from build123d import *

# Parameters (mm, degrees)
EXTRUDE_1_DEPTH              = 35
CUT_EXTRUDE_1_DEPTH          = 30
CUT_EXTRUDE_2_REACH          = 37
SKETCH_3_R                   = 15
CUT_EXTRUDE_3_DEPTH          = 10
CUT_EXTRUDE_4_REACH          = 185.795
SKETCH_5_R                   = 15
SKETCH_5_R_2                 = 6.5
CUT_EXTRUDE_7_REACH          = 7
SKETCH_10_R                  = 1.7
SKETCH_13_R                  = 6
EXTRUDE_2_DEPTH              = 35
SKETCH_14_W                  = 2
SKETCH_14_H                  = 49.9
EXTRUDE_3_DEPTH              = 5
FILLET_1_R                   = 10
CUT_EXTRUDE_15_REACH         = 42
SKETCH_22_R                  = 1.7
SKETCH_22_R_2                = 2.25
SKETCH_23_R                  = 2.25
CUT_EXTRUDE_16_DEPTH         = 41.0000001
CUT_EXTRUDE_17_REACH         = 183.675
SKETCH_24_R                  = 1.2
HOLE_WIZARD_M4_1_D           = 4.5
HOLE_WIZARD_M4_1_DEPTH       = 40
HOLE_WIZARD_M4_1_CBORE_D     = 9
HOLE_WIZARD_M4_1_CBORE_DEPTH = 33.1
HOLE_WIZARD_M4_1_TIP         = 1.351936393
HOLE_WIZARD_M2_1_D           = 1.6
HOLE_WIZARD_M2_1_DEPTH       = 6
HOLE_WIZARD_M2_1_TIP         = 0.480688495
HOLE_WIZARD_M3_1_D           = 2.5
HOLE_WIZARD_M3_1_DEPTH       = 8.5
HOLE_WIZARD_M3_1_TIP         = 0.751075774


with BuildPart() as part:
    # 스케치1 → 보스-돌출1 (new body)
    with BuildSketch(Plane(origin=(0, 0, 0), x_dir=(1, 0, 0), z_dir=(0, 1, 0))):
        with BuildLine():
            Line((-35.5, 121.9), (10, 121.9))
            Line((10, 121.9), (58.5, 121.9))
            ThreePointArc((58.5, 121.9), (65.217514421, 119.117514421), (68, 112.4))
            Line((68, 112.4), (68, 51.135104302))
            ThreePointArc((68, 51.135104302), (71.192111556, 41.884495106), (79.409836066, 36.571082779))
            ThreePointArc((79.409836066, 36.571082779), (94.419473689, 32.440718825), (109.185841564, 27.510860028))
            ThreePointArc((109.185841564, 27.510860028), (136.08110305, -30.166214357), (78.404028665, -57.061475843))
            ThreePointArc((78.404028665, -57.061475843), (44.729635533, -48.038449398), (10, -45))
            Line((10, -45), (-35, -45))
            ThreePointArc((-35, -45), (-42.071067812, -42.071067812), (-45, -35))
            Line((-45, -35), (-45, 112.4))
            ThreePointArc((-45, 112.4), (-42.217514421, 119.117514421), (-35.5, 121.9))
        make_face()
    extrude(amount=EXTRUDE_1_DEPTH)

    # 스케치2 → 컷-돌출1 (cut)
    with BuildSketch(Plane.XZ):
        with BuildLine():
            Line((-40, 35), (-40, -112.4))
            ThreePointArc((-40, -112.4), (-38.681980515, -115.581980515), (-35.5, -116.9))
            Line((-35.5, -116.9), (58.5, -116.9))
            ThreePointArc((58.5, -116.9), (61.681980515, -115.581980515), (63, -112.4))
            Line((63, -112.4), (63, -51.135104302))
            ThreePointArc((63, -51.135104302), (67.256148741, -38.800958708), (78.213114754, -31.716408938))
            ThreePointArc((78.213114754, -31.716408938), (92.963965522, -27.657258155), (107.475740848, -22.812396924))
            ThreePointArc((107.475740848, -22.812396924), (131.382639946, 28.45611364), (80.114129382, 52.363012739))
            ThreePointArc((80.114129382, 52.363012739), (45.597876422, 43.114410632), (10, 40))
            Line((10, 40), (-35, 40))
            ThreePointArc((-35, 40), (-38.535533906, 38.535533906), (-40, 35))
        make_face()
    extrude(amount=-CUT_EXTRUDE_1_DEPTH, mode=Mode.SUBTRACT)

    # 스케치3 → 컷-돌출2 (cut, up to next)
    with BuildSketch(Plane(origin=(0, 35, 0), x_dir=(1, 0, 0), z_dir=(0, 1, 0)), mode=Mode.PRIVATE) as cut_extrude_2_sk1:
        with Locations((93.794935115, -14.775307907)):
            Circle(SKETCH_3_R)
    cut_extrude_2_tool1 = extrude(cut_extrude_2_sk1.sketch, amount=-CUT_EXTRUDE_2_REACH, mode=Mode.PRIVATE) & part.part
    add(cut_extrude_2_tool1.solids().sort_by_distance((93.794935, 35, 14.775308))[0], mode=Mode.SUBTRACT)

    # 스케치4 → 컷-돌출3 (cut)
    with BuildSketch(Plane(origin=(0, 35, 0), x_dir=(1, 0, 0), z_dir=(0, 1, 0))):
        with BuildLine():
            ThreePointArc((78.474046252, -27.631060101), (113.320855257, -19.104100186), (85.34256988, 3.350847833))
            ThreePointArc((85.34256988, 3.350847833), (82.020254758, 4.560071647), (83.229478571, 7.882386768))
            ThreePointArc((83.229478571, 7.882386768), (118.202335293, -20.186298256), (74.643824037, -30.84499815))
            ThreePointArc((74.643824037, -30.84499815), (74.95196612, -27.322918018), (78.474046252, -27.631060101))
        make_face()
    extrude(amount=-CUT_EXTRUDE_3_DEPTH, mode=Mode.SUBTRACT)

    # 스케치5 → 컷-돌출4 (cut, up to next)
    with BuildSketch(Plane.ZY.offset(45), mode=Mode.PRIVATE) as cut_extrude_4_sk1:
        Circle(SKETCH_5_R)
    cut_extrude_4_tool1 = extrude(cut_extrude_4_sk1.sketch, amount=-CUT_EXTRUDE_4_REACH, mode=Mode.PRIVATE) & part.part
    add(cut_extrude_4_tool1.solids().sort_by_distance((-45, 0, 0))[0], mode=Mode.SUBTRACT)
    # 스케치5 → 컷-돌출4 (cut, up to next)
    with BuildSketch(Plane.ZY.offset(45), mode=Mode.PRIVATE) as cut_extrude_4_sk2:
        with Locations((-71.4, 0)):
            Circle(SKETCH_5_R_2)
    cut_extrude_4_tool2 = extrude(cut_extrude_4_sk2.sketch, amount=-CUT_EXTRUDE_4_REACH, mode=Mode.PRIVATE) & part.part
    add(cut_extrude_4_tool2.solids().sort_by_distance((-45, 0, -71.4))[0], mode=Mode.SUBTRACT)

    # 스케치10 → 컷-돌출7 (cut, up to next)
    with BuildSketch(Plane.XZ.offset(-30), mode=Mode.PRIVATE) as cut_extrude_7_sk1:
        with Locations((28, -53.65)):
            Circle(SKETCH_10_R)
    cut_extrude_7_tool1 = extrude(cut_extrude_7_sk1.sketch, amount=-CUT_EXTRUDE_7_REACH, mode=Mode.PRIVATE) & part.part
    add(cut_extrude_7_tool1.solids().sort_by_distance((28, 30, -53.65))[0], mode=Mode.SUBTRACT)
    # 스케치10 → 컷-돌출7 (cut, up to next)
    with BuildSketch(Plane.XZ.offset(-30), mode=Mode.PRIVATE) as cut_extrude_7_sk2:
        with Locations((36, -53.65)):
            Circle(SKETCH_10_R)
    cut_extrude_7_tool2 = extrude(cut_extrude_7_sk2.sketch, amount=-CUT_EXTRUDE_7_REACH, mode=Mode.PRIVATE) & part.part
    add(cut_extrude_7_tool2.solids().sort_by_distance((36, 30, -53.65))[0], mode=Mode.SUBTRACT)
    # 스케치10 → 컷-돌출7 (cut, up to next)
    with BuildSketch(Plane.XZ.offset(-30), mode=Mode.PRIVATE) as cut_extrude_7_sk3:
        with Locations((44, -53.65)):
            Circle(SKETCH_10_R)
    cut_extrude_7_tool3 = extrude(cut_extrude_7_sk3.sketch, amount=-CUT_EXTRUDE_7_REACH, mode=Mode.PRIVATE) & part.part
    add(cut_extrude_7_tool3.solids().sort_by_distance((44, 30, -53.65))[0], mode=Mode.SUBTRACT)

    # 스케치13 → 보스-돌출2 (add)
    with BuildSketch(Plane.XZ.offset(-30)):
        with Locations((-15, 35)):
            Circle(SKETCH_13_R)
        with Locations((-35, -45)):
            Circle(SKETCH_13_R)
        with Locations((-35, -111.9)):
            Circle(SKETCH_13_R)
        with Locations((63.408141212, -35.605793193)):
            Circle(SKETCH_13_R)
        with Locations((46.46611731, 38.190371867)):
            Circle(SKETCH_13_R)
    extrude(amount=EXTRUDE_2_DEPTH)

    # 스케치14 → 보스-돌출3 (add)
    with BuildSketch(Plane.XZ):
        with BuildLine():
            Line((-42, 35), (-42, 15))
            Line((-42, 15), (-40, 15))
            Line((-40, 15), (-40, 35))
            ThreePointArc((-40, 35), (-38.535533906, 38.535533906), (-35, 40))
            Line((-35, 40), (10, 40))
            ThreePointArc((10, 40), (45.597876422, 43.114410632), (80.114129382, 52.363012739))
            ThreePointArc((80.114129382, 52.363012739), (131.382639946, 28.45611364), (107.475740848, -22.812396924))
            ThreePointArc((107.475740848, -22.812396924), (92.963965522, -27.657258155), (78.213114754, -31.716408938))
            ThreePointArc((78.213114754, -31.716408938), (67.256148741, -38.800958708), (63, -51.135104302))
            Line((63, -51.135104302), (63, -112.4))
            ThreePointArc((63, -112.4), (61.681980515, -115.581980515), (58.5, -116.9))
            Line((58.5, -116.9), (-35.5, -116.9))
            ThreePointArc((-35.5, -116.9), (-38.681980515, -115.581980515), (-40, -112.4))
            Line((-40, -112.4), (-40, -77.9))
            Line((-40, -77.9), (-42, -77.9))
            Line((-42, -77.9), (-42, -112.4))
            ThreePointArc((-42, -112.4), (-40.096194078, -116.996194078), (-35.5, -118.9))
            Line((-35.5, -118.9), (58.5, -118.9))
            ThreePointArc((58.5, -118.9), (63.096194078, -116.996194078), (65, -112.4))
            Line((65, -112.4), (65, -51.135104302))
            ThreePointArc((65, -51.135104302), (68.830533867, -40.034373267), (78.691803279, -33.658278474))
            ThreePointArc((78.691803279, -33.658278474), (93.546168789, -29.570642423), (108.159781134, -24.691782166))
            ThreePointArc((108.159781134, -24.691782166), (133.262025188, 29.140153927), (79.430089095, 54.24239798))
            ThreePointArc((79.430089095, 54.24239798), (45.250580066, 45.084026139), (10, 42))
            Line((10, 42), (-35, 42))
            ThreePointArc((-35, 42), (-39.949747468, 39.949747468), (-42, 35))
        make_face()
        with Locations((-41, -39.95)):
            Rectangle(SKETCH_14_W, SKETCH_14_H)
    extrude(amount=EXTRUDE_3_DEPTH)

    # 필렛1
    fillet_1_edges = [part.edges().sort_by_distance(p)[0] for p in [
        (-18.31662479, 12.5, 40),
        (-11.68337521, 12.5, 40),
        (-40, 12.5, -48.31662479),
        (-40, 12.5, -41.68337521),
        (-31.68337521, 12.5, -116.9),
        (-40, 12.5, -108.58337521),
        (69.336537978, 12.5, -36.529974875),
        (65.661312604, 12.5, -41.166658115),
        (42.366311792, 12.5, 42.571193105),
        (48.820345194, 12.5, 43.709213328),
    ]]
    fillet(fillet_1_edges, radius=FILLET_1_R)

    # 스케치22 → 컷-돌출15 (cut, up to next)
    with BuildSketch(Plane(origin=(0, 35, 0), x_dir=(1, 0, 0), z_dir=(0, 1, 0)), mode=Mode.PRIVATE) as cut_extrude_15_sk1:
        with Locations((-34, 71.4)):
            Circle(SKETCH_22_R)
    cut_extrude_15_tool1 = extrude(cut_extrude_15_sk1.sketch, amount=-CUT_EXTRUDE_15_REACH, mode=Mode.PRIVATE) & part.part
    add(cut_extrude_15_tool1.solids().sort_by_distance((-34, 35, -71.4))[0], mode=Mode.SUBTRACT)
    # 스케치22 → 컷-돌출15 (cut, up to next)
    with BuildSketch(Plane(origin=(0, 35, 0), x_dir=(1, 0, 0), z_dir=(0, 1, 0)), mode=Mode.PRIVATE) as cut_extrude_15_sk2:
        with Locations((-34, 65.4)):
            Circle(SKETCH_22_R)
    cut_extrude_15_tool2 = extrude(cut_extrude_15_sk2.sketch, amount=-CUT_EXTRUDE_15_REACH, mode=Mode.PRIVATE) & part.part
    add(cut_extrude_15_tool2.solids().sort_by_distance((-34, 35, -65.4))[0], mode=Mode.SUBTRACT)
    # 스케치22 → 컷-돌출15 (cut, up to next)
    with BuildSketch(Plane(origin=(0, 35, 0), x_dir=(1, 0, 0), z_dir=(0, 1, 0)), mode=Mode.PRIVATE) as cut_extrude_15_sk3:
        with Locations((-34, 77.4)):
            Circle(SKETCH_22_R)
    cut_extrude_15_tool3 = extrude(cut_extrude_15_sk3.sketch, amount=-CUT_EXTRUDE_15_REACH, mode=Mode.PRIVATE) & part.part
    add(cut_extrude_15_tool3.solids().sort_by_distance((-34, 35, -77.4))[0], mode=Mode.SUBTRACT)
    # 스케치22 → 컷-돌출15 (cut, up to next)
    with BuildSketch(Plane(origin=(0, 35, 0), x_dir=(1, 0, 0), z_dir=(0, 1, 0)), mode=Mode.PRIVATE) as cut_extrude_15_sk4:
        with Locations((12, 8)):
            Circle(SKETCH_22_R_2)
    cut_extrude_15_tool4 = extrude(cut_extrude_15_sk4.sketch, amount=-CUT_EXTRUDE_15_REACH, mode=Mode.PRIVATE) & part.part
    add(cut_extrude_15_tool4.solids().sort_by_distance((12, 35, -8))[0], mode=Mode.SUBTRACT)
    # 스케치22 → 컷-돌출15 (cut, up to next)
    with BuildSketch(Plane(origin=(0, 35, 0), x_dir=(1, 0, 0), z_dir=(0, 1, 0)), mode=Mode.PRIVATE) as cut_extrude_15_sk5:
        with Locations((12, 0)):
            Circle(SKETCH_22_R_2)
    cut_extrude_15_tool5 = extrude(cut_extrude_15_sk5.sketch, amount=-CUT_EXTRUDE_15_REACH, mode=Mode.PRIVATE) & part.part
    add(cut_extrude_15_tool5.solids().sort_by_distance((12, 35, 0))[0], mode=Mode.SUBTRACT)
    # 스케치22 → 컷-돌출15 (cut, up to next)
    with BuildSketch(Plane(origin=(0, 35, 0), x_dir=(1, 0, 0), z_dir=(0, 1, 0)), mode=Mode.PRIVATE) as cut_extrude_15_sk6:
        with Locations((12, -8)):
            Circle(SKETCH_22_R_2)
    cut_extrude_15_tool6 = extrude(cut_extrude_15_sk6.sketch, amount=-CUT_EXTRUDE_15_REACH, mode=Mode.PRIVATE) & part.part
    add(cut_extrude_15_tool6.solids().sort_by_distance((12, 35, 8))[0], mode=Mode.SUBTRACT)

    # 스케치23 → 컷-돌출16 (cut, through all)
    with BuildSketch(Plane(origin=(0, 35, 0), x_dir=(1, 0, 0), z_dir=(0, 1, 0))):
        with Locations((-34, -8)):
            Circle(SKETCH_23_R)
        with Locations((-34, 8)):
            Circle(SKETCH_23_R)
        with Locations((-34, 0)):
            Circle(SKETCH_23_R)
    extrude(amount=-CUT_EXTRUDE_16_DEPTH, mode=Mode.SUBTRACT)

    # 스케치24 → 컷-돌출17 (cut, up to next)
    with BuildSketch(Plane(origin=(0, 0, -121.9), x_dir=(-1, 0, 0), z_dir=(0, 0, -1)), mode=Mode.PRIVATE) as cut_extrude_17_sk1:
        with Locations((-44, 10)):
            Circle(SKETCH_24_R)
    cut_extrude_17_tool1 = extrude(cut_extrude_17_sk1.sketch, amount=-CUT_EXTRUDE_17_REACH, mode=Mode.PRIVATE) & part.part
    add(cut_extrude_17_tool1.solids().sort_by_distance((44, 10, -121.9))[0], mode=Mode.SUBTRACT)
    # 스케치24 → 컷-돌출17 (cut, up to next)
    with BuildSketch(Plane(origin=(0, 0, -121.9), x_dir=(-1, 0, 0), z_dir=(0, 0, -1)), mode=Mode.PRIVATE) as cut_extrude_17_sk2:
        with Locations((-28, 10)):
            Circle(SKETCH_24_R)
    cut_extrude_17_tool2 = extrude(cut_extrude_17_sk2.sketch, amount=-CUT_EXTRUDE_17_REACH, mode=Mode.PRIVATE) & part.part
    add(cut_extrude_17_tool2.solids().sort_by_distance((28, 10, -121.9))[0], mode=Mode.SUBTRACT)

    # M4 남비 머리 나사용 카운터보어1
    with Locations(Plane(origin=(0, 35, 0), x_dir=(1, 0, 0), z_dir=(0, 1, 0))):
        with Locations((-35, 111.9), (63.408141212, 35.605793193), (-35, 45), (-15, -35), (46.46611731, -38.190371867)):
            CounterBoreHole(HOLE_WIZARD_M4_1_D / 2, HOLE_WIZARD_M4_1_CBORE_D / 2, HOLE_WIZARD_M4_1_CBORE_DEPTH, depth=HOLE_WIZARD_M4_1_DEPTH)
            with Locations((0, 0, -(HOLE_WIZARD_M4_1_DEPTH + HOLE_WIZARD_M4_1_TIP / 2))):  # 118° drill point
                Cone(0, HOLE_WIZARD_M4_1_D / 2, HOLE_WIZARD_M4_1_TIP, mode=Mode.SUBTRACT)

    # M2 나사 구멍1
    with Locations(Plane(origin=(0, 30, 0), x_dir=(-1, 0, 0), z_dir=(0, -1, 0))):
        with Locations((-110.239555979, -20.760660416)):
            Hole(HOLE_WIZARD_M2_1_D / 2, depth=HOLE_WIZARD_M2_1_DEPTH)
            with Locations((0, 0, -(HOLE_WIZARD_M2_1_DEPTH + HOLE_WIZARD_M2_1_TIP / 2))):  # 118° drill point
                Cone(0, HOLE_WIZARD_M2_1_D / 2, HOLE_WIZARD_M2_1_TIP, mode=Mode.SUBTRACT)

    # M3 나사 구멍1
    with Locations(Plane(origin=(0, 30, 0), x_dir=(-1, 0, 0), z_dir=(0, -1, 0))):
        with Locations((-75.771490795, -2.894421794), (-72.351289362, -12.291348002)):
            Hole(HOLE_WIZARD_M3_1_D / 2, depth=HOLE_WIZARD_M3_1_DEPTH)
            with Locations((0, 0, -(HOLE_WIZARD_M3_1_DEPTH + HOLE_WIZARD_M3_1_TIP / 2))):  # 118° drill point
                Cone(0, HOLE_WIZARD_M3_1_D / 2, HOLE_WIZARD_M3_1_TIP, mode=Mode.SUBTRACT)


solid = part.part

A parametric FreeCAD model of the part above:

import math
import FreeCAD as App
import Part
import Sketcher

V = App.Vector
Q = App.Units.Quantity


def edges_at(feature, points):
    """Names of the edges that pass closest to the given points."""
    edges = feature.Shape.Edges
    near = lambda p: min(range(len(edges)), key=lambda i: edges[i].distToShape(Part.Vertex(*p))[0])
    return sorted({f"Edge{near(p) + 1}" for p in points})

doc = App.newDocument("Part")
body = doc.addObject("PartDesign::Body", "Body")

# Sketch on XZ plane
sketch1 = body.newObject("Sketcher::SketchObject", "Sketch")
sketch1.AttachmentSupport = (doc.getObject("XZ_Plane"), [""])
sketch1.MapMode = "FlatFace"
sketch1.addGeometry(Part.LineSegment(V(58, -122, 0), V(-36, -122, 0)), False)
sketch1.addGeometry(Part.ArcOfCircle(Part.Circle(V(-35, -112, 0), V(0, 0, 1), 10), math.radians(-180), math.radians(-90)), False)
sketch1.addGeometry(Part.LineSegment(V(-45, -112, 0), V(-45, 35, 0)), False)
sketch1.addGeometry(Part.ArcOfCircle(Part.Circle(V(-35, 35, 0), V(0, 0, 1), 10), math.radians(90), math.radians(180)), False)
sketch1.addGeometry(Part.LineSegment(V(-35, 45, 0), V(10, 45, 0)), False)
sketch1.addGeometry(Part.ArcOfCircle(Part.Circle(V(10, 245, 0), V(0, 0, 1), 200), math.radians(-90), math.radians(-70)), False)
sketch1.addGeometry(Part.ArcOfCircle(Part.Circle(V(94, 15, 0), V(0, 0, 1), 45), math.radians(-70), math.radians(110)), False)
sketch1.addGeometry(Part.ArcOfCircle(Part.Circle(V(10, 245, 0), V(0, 0, 1), 290), math.radians(-76.15), math.radians(-70)), False)
sketch1.addGeometry(Part.ArcOfCircle(Part.Circle(V(83, -51, 0), V(0, 0, 1), 15), math.radians(104), math.radians(180)), False)
sketch1.addGeometry(Part.LineSegment(V(68, -51, 0), V(68, -112, 0)), False)
sketch1.addGeometry(Part.ArcOfCircle(Part.Circle(V(58, -112, 0), V(0, 0, 1), 10), math.radians(-90), math.radians(0)), False)
sketch1.addConstraint(Sketcher.Constraint("Tangent", 0, 2, 1, 2))
sketch1.addConstraint(Sketcher.Constraint("Tangent", 1, 1, 2, 1))
sketch1.addConstraint(Sketcher.Constraint("Tangent", 2, 2, 3, 2))
sketch1.addConstraint(Sketcher.Constraint("Tangent", 3, 1, 4, 1))
sketch1.addConstraint(Sketcher.Constraint("Tangent", 4, 2, 5, 1))
sketch1.addConstraint(Sketcher.Constraint("Tangent", 5, 2, 6, 2))
sketch1.addConstraint(Sketcher.Constraint("Tangent", 6, 1, 7, 2))
sketch1.addConstraint(Sketcher.Constraint("Tangent", 7, 1, 8, 1))
sketch1.addConstraint(Sketcher.Constraint("Tangent", 8, 2, 9, 1))
sketch1.addConstraint(Sketcher.Constraint("Tangent", 9, 2, 10, 2))
sketch1.addConstraint(Sketcher.Constraint("Tangent", 10, 1, 0, 1))
sketch1.addConstraint(Sketcher.Constraint("Horizontal", 0))
sketch1.addConstraint(Sketcher.Constraint("Vertical", 2))
sketch1.addConstraint(Sketcher.Constraint("Horizontal", 4))
sketch1.addConstraint(Sketcher.Constraint("Vertical", 9))
sketch1.addConstraint(Sketcher.Constraint("Coincident", 7, 3, 5, 3))
sketch1.addConstraint(Sketcher.Constraint("Equal", 1, 10))
sketch1.addConstraint(Sketcher.Constraint("Radius", 3, Q("10 mm")))
sketch1.addConstraint(Sketcher.Constraint("Radius", 5, Q("200 mm")))
sketch1.addConstraint(Sketcher.Constraint("Radius", 6, Q("45 mm")))
sketch1.addConstraint(Sketcher.Constraint("Radius", 8, Q("15 mm")))
sketch1.addConstraint(Sketcher.Constraint("Radius", 1, Q("9.5 mm")))
sketch1.addConstraint(Sketcher.Constraint("DistanceX", 0, 2, 0, 1, Q("94 mm")))
sketch1.addConstraint(Sketcher.Constraint("DistanceX", 4, 1, 4, 2, Q("45 mm")))
sketch1.addConstraint(Sketcher.Constraint("DistanceY", 2, 1, 2, 2, Q("147.4 mm")))
sketch1.addConstraint(Sketcher.Constraint("DistanceX", 3, 3, -1, 1, Q("35 mm")))
sketch1.addConstraint(Sketcher.Constraint("DistanceY", -1, 1, 3, 3, Q("35 mm")))
sketch1.addConstraint(Sketcher.Constraint("DistanceX", 7, 1, 6, 3, Q("14.385099 mm")))
pad1 = body.newObject("PartDesign::Pad", "Pad")
pad1.Profile = sketch1
pad1.Length = 35
pad1.Reversed = True

# Sketch on XZ plane
sketch2 = body.newObject("Sketcher::SketchObject", "Sketch001")
sketch2.AttachmentSupport = (doc.getObject("XZ_Plane"), [""])
sketch2.MapMode = "FlatFace"
sketch2.addGeometry(Part.LineSegment(V(-40, 35, 0), V(-40, -112.4, 0)), False)
sketch2.addGeometry(Part.ArcOfCircle(Part.Circle(V(-35.5, -112.4, 0), V(0, 0, 1), 4.5), math.radians(-180), math.radians(-90)), False)
sketch2.addGeometry(Part.LineSegment(V(-35.5, -116.9, 0), V(58.5, -116.9, 0)), False)
sketch2.addGeometry(Part.ArcOfCircle(Part.Circle(V(58.5, -112.4, 0), V(0, 0, 1), 4.5), math.radians(-90), math.radians(0)), False)
sketch2.addGeometry(Part.LineSegment(V(63, -112.4, 0), V(63, -51.1, 0)), False)
sketch2.addGeometry(Part.ArcOfCircle(Part.Circle(V(83, -51.1, 0), V(0, 0, 1), 20), math.radians(104), math.radians(180)), False)
sketch2.addGeometry(Part.ArcOfCircle(Part.Circle(V(10, 245, 0), V(0, 0, 1), 285), math.radians(-76.15), math.radians(-70)), False)
sketch2.addGeometry(Part.ArcOfCircle(Part.Circle(V(93.8, 14.8, 0), V(0, 0, 1), 40), math.radians(-70), math.radians(110)), False)
sketch2.addGeometry(Part.ArcOfCircle(Part.Circle(V(10, 245, 0), V(0, 0, 1), 205), math.radians(-90), math.radians(-70)), False)
sketch2.addGeometry(Part.LineSegment(V(10, 40, 0), V(-35, 40, 0)), False)
sketch2.addGeometry(Part.ArcOfCircle(Part.Circle(V(-35, 35, 0), V(0, 0, 1), 5), math.radians(90), math.radians(180)), False)
sketch2.addConstraint(Sketcher.Constraint("Tangent", 0, 2, 1, 1))
sketch2.addConstraint(Sketcher.Constraint("Tangent", 1, 2, 2, 1))
sketch2.addConstraint(Sketcher.Constraint("Tangent", 2, 2, 3, 1))
sketch2.addConstraint(Sketcher.Constraint("Tangent", 3, 2, 4, 1))
sketch2.addConstraint(Sketcher.Constraint("Tangent", 4, 2, 5, 2))
sketch2.addConstraint(Sketcher.Constraint("Tangent", 5, 1, 6, 1))
sketch2.addConstraint(Sketcher.Constraint("Tangent", 6, 2, 7, 1))
sketch2.addConstraint(Sketcher.Constraint("Tangent", 7, 2, 8, 2))
sketch2.addConstraint(Sketcher.Constraint("Tangent", 8, 1, 9, 1))
sketch2.addConstraint(Sketcher.Constraint("Tangent", 9, 2, 10, 1))
sketch2.addConstraint(Sketcher.Constraint("Tangent", 10, 2, 0, 1))
sketch2.addConstraint(Sketcher.Constraint("Vertical", 0))
sketch2.addConstraint(Sketcher.Constraint("Horizontal", 2))
sketch2.addConstraint(Sketcher.Constraint("Vertical", 4))
sketch2.addConstraint(Sketcher.Constraint("Horizontal", 9))
sketch2.addConstraint(Sketcher.Constraint("Coincident", 8, 3, 6, 3))
sketch2.addConstraint(Sketcher.Constraint("Equal", 1, 3))
sketch2.addConstraint(Sketcher.Constraint("Radius", 5, Q("20 mm")))
sketch2.addConstraint(Sketcher.Constraint("Radius", 6, Q("285 mm")))
sketch2.addConstraint(Sketcher.Constraint("Radius", 7, Q("40 mm")))
sketch2.addConstraint(Sketcher.Constraint("Radius", 10, Q("5 mm")))
sketch2.addConstraint(Sketcher.Constraint("Radius", 1, Q("4.5 mm")))
sketch2.addConstraint(Sketcher.Constraint("DistanceX", 2, 1, 2, 2, Q("94 mm")))
sketch2.addConstraint(Sketcher.Constraint("DistanceX", 9, 2, 9, 1, Q("45 mm")))
sketch2.addConstraint(Sketcher.Constraint("DistanceY", 0, 2, 0, 1, Q("147.4 mm")))
sketch2.addConstraint(Sketcher.Constraint("DistanceX", -1, 1, 5, 3, Q("83 mm")))
sketch2.addConstraint(Sketcher.Constraint("DistanceY", -1, 1, 6, 3, Q("245 mm")))
sketch2.addConstraint(Sketcher.Constraint("DistanceX", -1, 1, 6, 2, Q("107.475741 mm")))
pocket1 = body.newObject("PartDesign::Pocket", "Pocket")
pocket1.Profile = sketch2
pocket1.Length = 30

# Sketch on XZ plane
sketch3 = body.newObject("Sketcher::SketchObject", "Sketch002")
sketch3.AttachmentSupport = (doc.getObject("XZ_Plane"), [""])
sketch3.MapMode = "FlatFace"
sketch3.AttachmentOffset = App.Placement(V(0, 0, -35), App.Rotation())
sketch3.addGeometry(Part.Circle(V(94, 15, 0), V(0, 0, 1), 15), False)
sketch3.addConstraint(Sketcher.Constraint("Diameter", 0, Q("30 mm")))
sketch3.addConstraint(Sketcher.Constraint("DistanceX", -1, 1, 0, 3, Q("93.794935 mm")))
sketch3.addConstraint(Sketcher.Constraint("DistanceY", -1, 1, 0, 3, Q("14.775308 mm")))
pocket2 = body.newObject("PartDesign::Pocket", "Pocket001")
pocket2.Profile = sketch3
pocket2.Type = "UpToFirst"
pocket2.Reversed = True

# Sketch on XZ plane
sketch4 = body.newObject("Sketcher::SketchObject", "Sketch003")
sketch4.AttachmentSupport = (doc.getObject("XZ_Plane"), [""])
sketch4.MapMode = "FlatFace"
sketch4.AttachmentOffset = App.Placement(V(0, 0, -35), App.Rotation())
sketch4.addGeometry(Part.ArcOfCircle(Part.Circle(V(93.8, 14.8, 0), V(0, 0, 1), 20), math.radians(-115), math.radians(140)), False)
sketch4.addGeometry(Part.ArcOfCircle(Part.Circle(V(76.6, 29.2, 0), V(0, 0, 1), 2.5), math.radians(140), math.radians(320)), False)
sketch4.addGeometry(Part.ArcOfCircle(Part.Circle(V(93.8, 14.8, 0), V(0, 0, 1), 25), math.radians(-115), math.radians(140)), False)
sketch4.addGeometry(Part.ArcOfCircle(Part.Circle(V(84.3, -5.6, 0), V(0, 0, 1), 2.5), math.radians(65), math.radians(245)), False)
sketch4.addConstraint(Sketcher.Constraint("Tangent", 0, 2, 1, 2))
sketch4.addConstraint(Sketcher.Constraint("Tangent", 1, 1, 2, 2))
sketch4.addConstraint(Sketcher.Constraint("Tangent", 2, 1, 3, 2))
sketch4.addConstraint(Sketcher.Constraint("Tangent", 3, 1, 0, 1))
sketch4.addConstraint(Sketcher.Constraint("Coincident", 2, 3, 0, 3))
sketch4.addConstraint(Sketcher.Constraint("Radius", 0, Q("20 mm")))
sketch4.addConstraint(Sketcher.Constraint("Radius", 2, Q("25 mm")))
sketch4.addConstraint(Sketcher.Constraint("DistanceY", -1, 1, 1, 1, Q("30.844998 mm")))
sketch4.addConstraint(Sketcher.Constraint("DistanceX", 1, 3, 0, 3, Q("17.236 mm")))
sketch4.addConstraint(Sketcher.Constraint("DistanceX", 1, 1, 3, 3, Q("9.6422 mm")))
sketch4.addConstraint(Sketcher.Constraint("DistanceX", -1, 1, 2, 1, Q("83.229479 mm")))
pocket3 = body.newObject("PartDesign::Pocket", "Pocket002")
pocket3.Profile = sketch4
pocket3.Length = 10
pocket3.Reversed = True

# Sketch on YZ plane
sketch5 = body.newObject("Sketcher::SketchObject", "Sketch004")
sketch5.AttachmentSupport = (doc.getObject("YZ_Plane"), [""])
sketch5.MapMode = "FlatFace"
sketch5.AttachmentOffset = App.Placement(V(0, 0, -45), App.Rotation())
sketch5.addGeometry(Part.Circle(V(0, 0, 0), V(0, 0, 1), 15), False)
sketch5.addConstraint(Sketcher.Constraint("Coincident", 0, 3, -1, 1))
sketch5.addConstraint(Sketcher.Constraint("Diameter", 0, Q("30 mm")))
pocket4 = body.newObject("PartDesign::Pocket", "Pocket003")
pocket4.Profile = sketch5
pocket4.Type = "UpToFirst"
pocket4.Reversed = True

# Sketch on YZ plane
sketch6 = body.newObject("Sketcher::SketchObject", "Sketch005")
sketch6.AttachmentSupport = (doc.getObject("YZ_Plane"), [""])
sketch6.MapMode = "FlatFace"
sketch6.AttachmentOffset = App.Placement(V(0, 0, -45), App.Rotation())
sketch6.addGeometry(Part.Circle(V(0, -71, 0), V(0, 0, 1), 6), False)
sketch6.addConstraint(Sketcher.Constraint("PointOnObject", 0, 3, -2))
sketch6.addConstraint(Sketcher.Constraint("Diameter", 0, Q("13 mm")))
sketch6.addConstraint(Sketcher.Constraint("DistanceY", 0, 3, -1, 1, Q("71.4 mm")))
pocket5 = body.newObject("PartDesign::Pocket", "Pocket004")
pocket5.Profile = sketch6
pocket5.Type = "UpToFirst"
pocket5.Reversed = True

# Sketch on XZ plane
sketch7 = body.newObject("Sketcher::SketchObject", "Sketch006")
sketch7.AttachmentSupport = (doc.getObject("XZ_Plane"), [""])
sketch7.MapMode = "FlatFace"
sketch7.AttachmentOffset = App.Placement(V(0, 0, -30), App.Rotation())
sketch7.addGeometry(Part.Circle(V(28, -53.6, 0), V(0, 0, 1), 1.7), False)
sketch7.addConstraint(Sketcher.Constraint("Diameter", 0, Q("3.4 mm")))
sketch7.addConstraint(Sketcher.Constraint("DistanceX", -1, 1, 0, 3, Q("28 mm")))
sketch7.addConstraint(Sketcher.Constraint("DistanceY", 0, 3, -1, 1, Q("53.65 mm")))
pocket6 = body.newObject("PartDesign::Pocket", "Pocket005")
pocket6.Profile = sketch7
pocket6.Type = "UpToFirst"

# Sketch on XZ plane
sketch8 = body.newObject("Sketcher::SketchObject", "Sketch007")
sketch8.AttachmentSupport = (doc.getObject("XZ_Plane"), [""])
sketch8.MapMode = "FlatFace"
sketch8.AttachmentOffset = App.Placement(V(0, 0, -30), App.Rotation())
sketch8.addGeometry(Part.Circle(V(36, -53.6, 0), V(0, 0, 1), 1.7), False)
sketch8.addConstraint(Sketcher.Constraint("Diameter", 0, Q("3.4 mm")))
sketch8.addConstraint(Sketcher.Constraint("DistanceX", -1, 1, 0, 3, Q("36 mm")))
sketch8.addConstraint(Sketcher.Constraint("DistanceY", 0, 3, -1, 1, Q("53.65 mm")))
pocket7 = body.newObject("PartDesign::Pocket", "Pocket006")
pocket7.Profile = sketch8
pocket7.Type = "UpToFirst"

# Sketch on XZ plane
sketch9 = body.newObject("Sketcher::SketchObject", "Sketch008")
sketch9.AttachmentSupport = (doc.getObject("XZ_Plane"), [""])
sketch9.MapMode = "FlatFace"
sketch9.AttachmentOffset = App.Placement(V(0, 0, -30), App.Rotation())
sketch9.addGeometry(Part.Circle(V(44, -53.6, 0), V(0, 0, 1), 1.7), False)
sketch9.addConstraint(Sketcher.Constraint("Diameter", 0, Q("3.4 mm")))
sketch9.addConstraint(Sketcher.Constraint("DistanceX", -1, 1, 0, 3, Q("44 mm")))
sketch9.addConstraint(Sketcher.Constraint("DistanceY", 0, 3, -1, 1, Q("53.65 mm")))
pocket8 = body.newObject("PartDesign::Pocket", "Pocket007")
pocket8.Profile = sketch9
pocket8.Type = "UpToFirst"

# Sketch on XZ plane
sketch10 = body.newObject("Sketcher::SketchObject", "Sketch009")
sketch10.AttachmentSupport = (doc.getObject("XZ_Plane"), [""])
sketch10.MapMode = "FlatFace"
sketch10.AttachmentOffset = App.Placement(V(0, 0, -30), App.Rotation())
sketch10.addGeometry(Part.Circle(V(-15, 35, 0), V(0, 0, 1), 6), False)
sketch10.addGeometry(Part.Circle(V(-35, -45, 0), V(0, 0, 1), 6), False)
sketch10.addGeometry(Part.Circle(V(-35, -112, 0), V(0, 0, 1), 6), False)
sketch10.addGeometry(Part.Circle(V(63, -36, 0), V(0, 0, 1), 6), False)
sketch10.addGeometry(Part.Circle(V(46, 38, 0), V(0, 0, 1), 6), False)
sketch10.addConstraint(Sketcher.Constraint("Equal", 0, 1))
sketch10.addConstraint(Sketcher.Constraint("Equal", 1, 2))
sketch10.addConstraint(Sketcher.Constraint("Equal", 2, 3))
sketch10.addConstraint(Sketcher.Constraint("Equal", 3, 4))
sketch10.addConstraint(Sketcher.Constraint("Vertical", 1, 3, 2, 3))
sketch10.addConstraint(Sketcher.Constraint("Diameter", 0, Q("12 mm")))
sketch10.addConstraint(Sketcher.Constraint("DistanceX", 0, 3, -1, 1, Q("15 mm")))
sketch10.addConstraint(Sketcher.Constraint("DistanceY", -1, 1, 0, 3, Q("35 mm")))
sketch10.addConstraint(Sketcher.Constraint("DistanceX", 1, 3, -1, 1, Q("35 mm")))
sketch10.addConstraint(Sketcher.Constraint("DistanceY", 1, 3, -1, 1, Q("45 mm")))
sketch10.addConstraint(Sketcher.Constraint("DistanceY", 2, 3, -1, 1, Q("111.9 mm")))
sketch10.addConstraint(Sketcher.Constraint("DistanceX", -1, 1, 3, 3, Q("63.408141 mm")))
sketch10.addConstraint(Sketcher.Constraint("DistanceY", -1, 1, 4, 3, Q("38.190372 mm")))
sketch10.addConstraint(Sketcher.Constraint("DistanceY", 3, 3, -1, 1, Q("35.605793 mm")))
sketch10.addConstraint(Sketcher.Constraint("DistanceX", -1, 1, 4, 3, Q("46.466117 mm")))
pad2 = body.newObject("PartDesign::Pad", "Pad001")
pad2.Profile = sketch10
pad2.Length = 35

# Sketch on XZ plane
sketch11 = body.newObject("Sketcher::SketchObject", "Sketch010")
sketch11.AttachmentSupport = (doc.getObject("XZ_Plane"), [""])
sketch11.MapMode = "FlatFace"
sketch11.addGeometry(Part.LineSegment(V(-42, 35, 0), V(-42, 15, 0)), False)
sketch11.addGeometry(Part.LineSegment(V(-42, 15, 0), V(-40, 15, 0)), False)
sketch11.addGeometry(Part.LineSegment(V(-40, 15, 0), V(-40, 35, 0)), False)
sketch11.addGeometry(Part.ArcOfCircle(Part.Circle(V(-35, 35, 0), V(0, 0, 1), 5), math.radians(90), math.radians(180)), False)
sketch11.addGeometry(Part.LineSegment(V(-35, 40, 0), V(10, 40, 0)), False)
sketch11.addGeometry(Part.ArcOfCircle(Part.Circle(V(10, 245, 0), V(0, 0, 1), 205), math.radians(-90), math.radians(-70)), False)
sketch11.addGeometry(Part.ArcOfCircle(Part.Circle(V(93.8, 14.8, 0), V(0, 0, 1), 40), math.radians(-70), math.radians(110)), False)
sketch11.addGeometry(Part.ArcOfCircle(Part.Circle(V(10, 245, 0), V(0, 0, 1), 285), math.radians(-76.15), math.radians(-70)), False)
sketch11.addGeometry(Part.ArcOfCircle(Part.Circle(V(83, -51.1, 0), V(0, 0, 1), 20), math.radians(104), math.radians(180)), False)
sketch11.addGeometry(Part.LineSegment(V(63, -51.1, 0), V(63, -112.4, 0)), False)
sketch11.addGeometry(Part.ArcOfCircle(Part.Circle(V(58.5, -112.4, 0), V(0, 0, 1), 4.5), math.radians(-90), math.radians(0)), False)
sketch11.addGeometry(Part.LineSegment(V(58.5, -116.9, 0), V(-35.5, -116.9, 0)), False)
sketch11.addGeometry(Part.ArcOfCircle(Part.Circle(V(-35.5, -112.4, 0), V(0, 0, 1), 4.5), math.radians(-180), math.radians(-90)), False)
sketch11.addGeometry(Part.LineSegment(V(-40, -112.4, 0), V(-40, -77.9, 0)), False)
sketch11.addGeometry(Part.LineSegment(V(-40, -77.9, 0), V(-42, -77.9, 0)), False)
sketch11.addGeometry(Part.LineSegment(V(-42, -77.9, 0), V(-42, -112.4, 0)), False)
sketch11.addGeometry(Part.ArcOfCircle(Part.Circle(V(-35.5, -112.4, 0), V(0, 0, 1), 6.5), math.radians(180), math.radians(270)), False)
sketch11.addGeometry(Part.LineSegment(V(-35.5, -118.9, 0), V(58.5, -118.9, 0)), False)
sketch11.addGeometry(Part.ArcOfCircle(Part.Circle(V(58.5, -112.4, 0), V(0, 0, 1), 6.5), math.radians(-90), math.radians(0)), False)
sketch11.addGeometry(Part.LineSegment(V(65, -112.4, 0), V(65, -51.1, 0)), False)
sketch11.addGeometry(Part.ArcOfCircle(Part.Circle(V(83, -51.1, 0), V(0, 0, 1), 18), math.radians(104), math.radians(180)), False)
sketch11.addGeometry(Part.ArcOfCircle(Part.Circle(V(10, 245, 0), V(0, 0, 1), 287), math.radians(-76.15), math.radians(-70)), False)
sketch11.addGeometry(Part.ArcOfCircle(Part.Circle(V(93.8, 14.8, 0), V(0, 0, 1), 42), math.radians(-70), math.radians(110)), False)
sketch11.addGeometry(Part.ArcOfCircle(Part.Circle(V(10, 245, 0), V(0, 0, 1), 203), math.radians(-90), math.radians(-70)), False)
sketch11.addGeometry(Part.LineSegment(V(10, 42, 0), V(-35, 42, 0)), False)
sketch11.addGeometry(Part.ArcOfCircle(Part.Circle(V(-35, 35, 0), V(0, 0, 1), 7), math.radians(90), math.radians(180)), False)
sketch11.addGeometry(Part.LineSegment(V(-42, -15, 0), V(-42, -64.9, 0)), False)
sketch11.addGeometry(Part.LineSegment(V(-42, -64.9, 0), V(-40, -64.9, 0)), False)
sketch11.addGeometry(Part.LineSegment(V(-40, -64.9, 0), V(-40, -15, 0)), False)
sketch11.addGeometry(Part.LineSegment(V(-40, -15, 0), V(-42, -15, 0)), False)
sketch11.addConstraint(Sketcher.Constraint("Coincident", 0, 2, 1, 1))
sketch11.addConstraint(Sketcher.Constraint("Coincident", 1, 2, 2, 1))
sketch11.addConstraint(Sketcher.Constraint("Tangent", 2, 2, 3, 2))
sketch11.addConstraint(Sketcher.Constraint("Tangent", 3, 1, 4, 1))
sketch11.addConstraint(Sketcher.Constraint("Tangent", 4, 2, 5, 1))
sketch11.addConstraint(Sketcher.Constraint("Tangent", 5, 2, 6, 2))
sketch11.addConstraint(Sketcher.Constraint("Tangent", 6, 1, 7, 2))
sketch11.addConstraint(Sketcher.Constraint("Tangent", 7, 1, 8, 1))
sketch11.addConstraint(Sketcher.Constraint("Tangent", 8, 2, 9, 1))
sketch11.addConstraint(Sketcher.Constraint("Tangent", 9, 2, 10, 2))
sketch11.addConstraint(Sketcher.Constraint("Tangent", 10, 1, 11, 1))
sketch11.addConstraint(Sketcher.Constraint("Tangent", 11, 2, 12, 2))
sketch11.addConstraint(Sketcher.Constraint("Tangent", 12, 1, 13, 1))
sketch11.addConstraint(Sketcher.Constraint("Coincident", 13, 2, 14, 1))
sketch11.addConstraint(Sketcher.Constraint("Coincident", 14, 2, 15, 1))
sketch11.addConstraint(Sketcher.Constraint("Tangent", 15, 2, 16, 1))
sketch11.addConstraint(Sketcher.Constraint("Tangent", 16, 2, 17, 1))
sketch11.addConstraint(Sketcher.Constraint("Tangent", 17, 2, 18, 1))
sketch11.addConstraint(Sketcher.Constraint("Tangent", 18, 2, 19, 1))
sketch11.addConstraint(Sketcher.Constraint("Tangent", 19, 2, 20, 2))
sketch11.addConstraint(Sketcher.Constraint("Tangent", 20, 1, 21, 1))
sketch11.addConstraint(Sketcher.Constraint("Tangent", 21, 2, 22, 1))
sketch11.addConstraint(Sketcher.Constraint("Tangent", 22, 2, 23, 2))
sketch11.addConstraint(Sketcher.Constraint("Tangent", 23, 1, 24, 1))
sketch11.addConstraint(Sketcher.Constraint("Tangent", 24, 2, 25, 1))
sketch11.addConstraint(Sketcher.Constraint("Tangent", 25, 2, 0, 1))
sketch11.addConstraint(Sketcher.Constraint("Coincident", 26, 2, 27, 1))
sketch11.addConstraint(Sketcher.Constraint("Coincident", 27, 2, 28, 1))
sketch11.addConstraint(Sketcher.Constraint("Coincident", 28, 2, 29, 1))
sketch11.addConstraint(Sketcher.Constraint("Coincident", 29, 2, 26, 1))
sketch11.addConstraint(Sketcher.Constraint("Vertical", 0))
sketch11.addConstraint(Sketcher.Constraint("Horizontal", 1))
sketch11.addConstraint(Sketcher.Constraint("Vertical", 2))
sketch11.addConstraint(Sketcher.Constraint("Horizontal", 4))
sketch11.addConstraint(Sketcher.Constraint("Vertical", 9))
sketch11.addConstraint(Sketcher.Constraint("Horizontal", 11))
sketch11.addConstraint(Sketcher.Constraint("Vertical", 13))
sketch11.addConstraint(Sketcher.Constraint("Horizontal", 14))
sketch11.addConstraint(Sketcher.Constraint("Vertical", 15))
sketch11.addConstraint(Sketcher.Constraint("Horizontal", 17))
sketch11.addConstraint(Sketcher.Constraint("Vertical", 19))
sketch11.addConstraint(Sketcher.Constraint("Horizontal", 24))
sketch11.addConstraint(Sketcher.Constraint("Vertical", 26))
sketch11.addConstraint(Sketcher.Constraint("Horizontal", 27))
sketch11.addConstraint(Sketcher.Constraint("Vertical", 28))
sketch11.addConstraint(Sketcher.Constraint("Horizontal", 29))
sketch11.addConstraint(Sketcher.Constraint("Coincident", 7, 3, 5, 3))
sketch11.addConstraint(Sketcher.Constraint("Coincident", 16, 3, 12, 3))
sketch11.addConstraint(Sketcher.Constraint("Coincident", 18, 3, 10, 3))
sketch11.addConstraint(Sketcher.Constraint("Coincident", 20, 3, 8, 3))
sketch11.addConstraint(Sketcher.Constraint("Coincident", 21, 3, 5, 3))
sketch11.addConstraint(Sketcher.Constraint("Coincident", 22, 3, 6, 3))
sketch11.addConstraint(Sketcher.Constraint("Coincident", 23, 3, 5, 3))
sketch11.addConstraint(Sketcher.Constraint("Coincident", 25, 3, 3, 3))
sketch11.addConstraint(Sketcher.Constraint("Equal", 10, 12))
sketch11.addConstraint(Sketcher.Constraint("Symmetric", 1, 2, 28, 2, -1))
sketch11.addConstraint(Sketcher.Constraint("Vertical", 2, 2, 12, 1))
sketch11.addConstraint(Sketcher.Constraint("Vertical", 25, 2, 26, 2))
sketch11.addConstraint(Sketcher.Constraint("Radius", 3, Q("5 mm")))
sketch11.addConstraint(Sketcher.Constraint("Radius", 5, Q("205 mm")))
sketch11.addConstraint(Sketcher.Constraint("Radius", 6, Q("40 mm")))
sketch11.addConstraint(Sketcher.Constraint("Radius", 8, Q("20 mm")))
sketch11.addConstraint(Sketcher.Constraint("Radius", 20, Q("18 mm")))
sketch11.addConstraint(Sketcher.Constraint("Radius", 10, Q("4.5 mm")))
sketch11.addConstraint(Sketcher.Constraint("DistanceX", 4, 1, 4, 2, Q("45 mm")))
sketch11.addConstraint(Sketcher.Constraint("DistanceX", 11, 2, 11, 1, Q("94 mm")))
sketch11.addConstraint(Sketcher.Constraint("DistanceY", 0, 2, 0, 1, Q("20 mm")))
sketch11.addConstraint(Sketcher.Constraint("DistanceY", 13, 1, 13, 2, Q("34.5 mm")))
sketch11.addConstraint(Sketcher.Constraint("DistanceY", 26, 2, 26, 1, Q("49.9 mm")))
sketch11.addConstraint(Sketcher.Constraint("DistanceX", 3, 3, -1, 1, Q("35 mm")))
sketch11.addConstraint(Sketcher.Constraint("DistanceY", -1, 1, 3, 3, Q("35 mm")))
sketch11.addConstraint(Sketcher.Constraint("DistanceY", 14, 2, 26, 2, Q("13 mm")))
sketch11.addConstraint(Sketcher.Constraint("DistanceX", -1, 1, 5, 2, Q("80.114129 mm")))
pad3 = body.newObject("PartDesign::Pad", "Pad002")
pad3.Profile = sketch11
pad3.Length = 5
doc.recompute()

fillet = body.newObject("PartDesign::Fillet", "Fillet")
fillet.Base = (pad3, edges_at(pad3, [
    (-18.317, 12.5, 40),
    (-11.683, 12.5, 40),
    (-40, 12.5, -48.317),
    (-40, 12.5, -41.683),
    (-31.683, 12.5, -116.9),
    (-40, 12.5, -108.583),
    (69.337, 12.5, -36.53),
    (65.661, 12.5, -41.167),
    (42.366, 12.5, 42.571),
    (48.82, 12.5, 43.709),
]))
fillet.Radius = 10

# Sketch on XZ plane
sketch12 = body.newObject("Sketcher::SketchObject", "Sketch011")
sketch12.AttachmentSupport = (doc.getObject("XZ_Plane"), [""])
sketch12.MapMode = "FlatFace"
sketch12.AttachmentOffset = App.Placement(V(0, 0, -35), App.Rotation())
sketch12.addGeometry(Part.Circle(V(-34, -71.4, 0), V(0, 0, 1), 1.7), False)
sketch12.addConstraint(Sketcher.Constraint("Diameter", 0, Q("3.4 mm")))
sketch12.addConstraint(Sketcher.Constraint("DistanceX", 0, 3, -1, 1, Q("34 mm")))
sketch12.addConstraint(Sketcher.Constraint("DistanceY", 0, 3, -1, 1, Q("71.4 mm")))
pocket9 = body.newObject("PartDesign::Pocket", "Pocket008")
pocket9.Profile = sketch12
pocket9.Type = "UpToFirst"
pocket9.Reversed = True

# Sketch on XZ plane
sketch13 = body.newObject("Sketcher::SketchObject", "Sketch012")
sketch13.AttachmentSupport = (doc.getObject("XZ_Plane"), [""])
sketch13.MapMode = "FlatFace"
sketch13.AttachmentOffset = App.Placement(V(0, 0, -35), App.Rotation())
sketch13.addGeometry(Part.Circle(V(-34, -65.4, 0), V(0, 0, 1), 1.7), False)
sketch13.addConstraint(Sketcher.Constraint("Diameter", 0, Q("3.4 mm")))
sketch13.addConstraint(Sketcher.Constraint("DistanceX", 0, 3, -1, 1, Q("34 mm")))
sketch13.addConstraint(Sketcher.Constraint("DistanceY", 0, 3, -1, 1, Q("65.4 mm")))
pocket10 = body.newObject("PartDesign::Pocket", "Pocket009")
pocket10.Profile = sketch13
pocket10.Type = "UpToFirst"
pocket10.Reversed = True

# Sketch on XZ plane
sketch14 = body.newObject("Sketcher::SketchObject", "Sketch013")
sketch14.AttachmentSupport = (doc.getObject("XZ_Plane"), [""])
sketch14.MapMode = "FlatFace"
sketch14.AttachmentOffset = App.Placement(V(0, 0, -35), App.Rotation())
sketch14.addGeometry(Part.Circle(V(-34, -77.4, 0), V(0, 0, 1), 1.7), False)
sketch14.addConstraint(Sketcher.Constraint("Diameter", 0, Q("3.4 mm")))
sketch14.addConstraint(Sketcher.Constraint("DistanceX", 0, 3, -1, 1, Q("34 mm")))
sketch14.addConstraint(Sketcher.Constraint("DistanceY", 0, 3, -1, 1, Q("77.4 mm")))
pocket11 = body.newObject("PartDesign::Pocket", "Pocket010")
pocket11.Profile = sketch14
pocket11.Type = "UpToFirst"
pocket11.Reversed = True

# Sketch on XZ plane
sketch15 = body.newObject("Sketcher::SketchObject", "Sketch014")
sketch15.AttachmentSupport = (doc.getObject("XZ_Plane"), [""])
sketch15.MapMode = "FlatFace"
sketch15.AttachmentOffset = App.Placement(V(0, 0, -35), App.Rotation())
sketch15.addGeometry(Part.Circle(V(12, -8, 0), V(0, 0, 1), 2.2), False)
sketch15.addConstraint(Sketcher.Constraint("Diameter", 0, Q("4.5 mm")))
sketch15.addConstraint(Sketcher.Constraint("DistanceX", -1, 1, 0, 3, Q("12 mm")))
sketch15.addConstraint(Sketcher.Constraint("DistanceY", 0, 3, -1, 1, Q("8 mm")))
pocket12 = body.newObject("PartDesign::Pocket", "Pocket011")
pocket12.Profile = sketch15
pocket12.Type = "UpToFirst"
pocket12.Reversed = True

# Sketch on XZ plane
sketch16 = body.newObject("Sketcher::SketchObject", "Sketch015")
sketch16.AttachmentSupport = (doc.getObject("XZ_Plane"), [""])
sketch16.MapMode = "FlatFace"
sketch16.AttachmentOffset = App.Placement(V(0, 0, -35), App.Rotation())
sketch16.addGeometry(Part.Circle(V(12, 0, 0), V(0, 0, 1), 2.2), False)
sketch16.addConstraint(Sketcher.Constraint("PointOnObject", 0, 3, -1))
sketch16.addConstraint(Sketcher.Constraint("Diameter", 0, Q("4.5 mm")))
sketch16.addConstraint(Sketcher.Constraint("DistanceX", -1, 1, 0, 3, Q("12 mm")))
pocket13 = body.newObject("PartDesign::Pocket", "Pocket012")
pocket13.Profile = sketch16
pocket13.Type = "UpToFirst"
pocket13.Reversed = True

# Sketch on XZ plane
sketch17 = body.newObject("Sketcher::SketchObject", "Sketch016")
sketch17.AttachmentSupport = (doc.getObject("XZ_Plane"), [""])
sketch17.MapMode = "FlatFace"
sketch17.AttachmentOffset = App.Placement(V(0, 0, -35), App.Rotation())
sketch17.addGeometry(Part.Circle(V(12, 8, 0), V(0, 0, 1), 2.2), False)
sketch17.addConstraint(Sketcher.Constraint("Diameter", 0, Q("4.5 mm")))
sketch17.addConstraint(Sketcher.Constraint("DistanceX", -1, 1, 0, 3, Q("12 mm")))
sketch17.addConstraint(Sketcher.Constraint("DistanceY", -1, 1, 0, 3, Q("8 mm")))
pocket14 = body.newObject("PartDesign::Pocket", "Pocket013")
pocket14.Profile = sketch17
pocket14.Type = "UpToFirst"
pocket14.Reversed = True

# Sketch on XZ plane
sketch18 = body.newObject("Sketcher::SketchObject", "Sketch017")
sketch18.AttachmentSupport = (doc.getObject("XZ_Plane"), [""])
sketch18.MapMode = "FlatFace"
sketch18.AttachmentOffset = App.Placement(V(0, 0, -35), App.Rotation())
sketch18.addGeometry(Part.Circle(V(-34, 8, 0), V(0, 0, 1), 2.2), False)
sketch18.addGeometry(Part.Circle(V(-34, -8, 0), V(0, 0, 1), 2.2), False)
sketch18.addGeometry(Part.Circle(V(-34, 0, 0), V(0, 0, 1), 2.2), False)
sketch18.addConstraint(Sketcher.Constraint("Equal", 0, 1))
sketch18.addConstraint(Sketcher.Constraint("Equal", 1, 2))
sketch18.addConstraint(Sketcher.Constraint("Symmetric", 0, 3, 1, 3, -1))
sketch18.addConstraint(Sketcher.Constraint("PointOnObject", 2, 3, -1))
sketch18.addConstraint(Sketcher.Constraint("Vertical", 1, 3, 2, 3))
sketch18.addConstraint(Sketcher.Constraint("Diameter", 0, Q("4.5 mm")))
sketch18.addConstraint(Sketcher.Constraint("DistanceX", 0, 3, -1, 1, Q("34 mm")))
sketch18.addConstraint(Sketcher.Constraint("DistanceY", -1, 1, 0, 3, Q("8 mm")))
pocket15 = body.newObject("PartDesign::Pocket", "Pocket014")
pocket15.Profile = sketch18
pocket15.Type = "ThroughAll"
pocket15.Reversed = True

# Sketch on XY plane
sketch19 = body.newObject("Sketcher::SketchObject", "Sketch018")
sketch19.AttachmentSupport = (doc.getObject("XY_Plane"), [""])
sketch19.MapMode = "FlatFace"
sketch19.AttachmentOffset = App.Placement(V(0, 0, -121.9), App.Rotation())
sketch19.addGeometry(Part.Circle(V(44, 10, 0), V(0, 0, 1), 1.2), False)
sketch19.addConstraint(Sketcher.Constraint("Diameter", 0, Q("2.4 mm")))
sketch19.addConstraint(Sketcher.Constraint("DistanceX", -1, 1, 0, 3, Q("44 mm")))
sketch19.addConstraint(Sketcher.Constraint("DistanceY", -1, 1, 0, 3, Q("10 mm")))
pocket16 = body.newObject("PartDesign::Pocket", "Pocket015")
pocket16.Profile = sketch19
pocket16.Type = "UpToFirst"
pocket16.Reversed = True

# Sketch on XY plane
sketch20 = body.newObject("Sketcher::SketchObject", "Sketch019")
sketch20.AttachmentSupport = (doc.getObject("XY_Plane"), [""])
sketch20.MapMode = "FlatFace"
sketch20.AttachmentOffset = App.Placement(V(0, 0, -121.9), App.Rotation())
sketch20.addGeometry(Part.Circle(V(28, 10, 0), V(0, 0, 1), 1.2), False)
sketch20.addConstraint(Sketcher.Constraint("Diameter", 0, Q("2.4 mm")))
sketch20.addConstraint(Sketcher.Constraint("DistanceX", -1, 1, 0, 3, Q("28 mm")))
sketch20.addConstraint(Sketcher.Constraint("DistanceY", -1, 1, 0, 3, Q("10 mm")))
pocket17 = body.newObject("PartDesign::Pocket", "Pocket016")
pocket17.Profile = sketch20
pocket17.Type = "UpToFirst"
pocket17.Reversed = True

# Sketch on XZ plane
sketch21 = body.newObject("Sketcher::SketchObject", "Sketch020")
sketch21.AttachmentSupport = (doc.getObject("XZ_Plane"), [""])
sketch21.MapMode = "FlatFace"
sketch21.AttachmentOffset = App.Placement(V(0, 0, -35), App.Rotation())
sketch21.addGeometry(Part.Circle(V(-35, -111.9, 0), V(0, 0, 1), 2.2), False)
sketch21.addGeometry(Part.Circle(V(63.4, -35.6, 0), V(0, 0, 1), 2.2), False)
sketch21.addGeometry(Part.Circle(V(-35, -45, 0), V(0, 0, 1), 2.2), False)
sketch21.addGeometry(Part.Circle(V(-15, 35, 0), V(0, 0, 1), 2.2), False)
sketch21.addGeometry(Part.Circle(V(46.5, 38.2, 0), V(0, 0, 1), 2.2), False)
sketch21.addConstraint(Sketcher.Constraint("Equal", 0, 1))
sketch21.addConstraint(Sketcher.Constraint("Equal", 1, 2))
sketch21.addConstraint(Sketcher.Constraint("Equal", 2, 3))
sketch21.addConstraint(Sketcher.Constraint("Equal", 3, 4))
sketch21.addConstraint(Sketcher.Constraint("Vertical", 0, 3, 2, 3))
sketch21.addConstraint(Sketcher.Constraint("Diameter", 0, Q("4.5 mm")))
sketch21.addConstraint(Sketcher.Constraint("DistanceX", 0, 3, -1, 1, Q("35 mm")))
sketch21.addConstraint(Sketcher.Constraint("DistanceY", 2, 3, -1, 1, Q("45 mm")))
sketch21.addConstraint(Sketcher.Constraint("DistanceX", 3, 3, -1, 1, Q("15 mm")))
sketch21.addConstraint(Sketcher.Constraint("DistanceY", -1, 1, 3, 3, Q("35 mm")))
sketch21.addConstraint(Sketcher.Constraint("DistanceY", 0, 3, -1, 1, Q("111.9 mm")))
sketch21.addConstraint(Sketcher.Constraint("DistanceX", -1, 1, 1, 3, Q("63.408141 mm")))
sketch21.addConstraint(Sketcher.Constraint("DistanceY", -1, 1, 4, 3, Q("38.190372 mm")))
sketch21.addConstraint(Sketcher.Constraint("DistanceY", 1, 3, -1, 1, Q("35.605793 mm")))
sketch21.addConstraint(Sketcher.Constraint("DistanceX", -1, 1, 4, 3, Q("46.466117 mm")))
doc.recompute()
hole = body.newObject("PartDesign::Hole", "Hole")
hole.Profile = sketch21
hole.ThreadType = "None"
hole.Diameter = 4.5
hole.DepthType = "Dimension"
hole.Depth = 40
hole.DrillPoint = "Angled"
hole.DrillPointAngle = 118
hole.HoleCutType = "Counterbore"
hole.HoleCutDiameter = 9
hole.HoleCutDepth = 33.1
hole.Reversed = True

# Sketch on XZ plane
sketch22 = body.newObject("Sketcher::SketchObject", "Sketch021")
sketch22.AttachmentSupport = (doc.getObject("XZ_Plane"), [""])
sketch22.MapMode = "FlatFace"
sketch22.AttachmentOffset = App.Placement(V(0, 0, -30), App.Rotation())
sketch22.addGeometry(Part.Circle(V(110.2, 20.8, 0), V(0, 0, 1), 0.8), False)
sketch22.addConstraint(Sketcher.Constraint("Diameter", 0, Q("1.6 mm")))
sketch22.addConstraint(Sketcher.Constraint("DistanceY", -1, 1, 0, 3, Q("20.76066 mm")))
sketch22.addConstraint(Sketcher.Constraint("DistanceX", -1, 1, 0, 3, Q("110.239556 mm")))
doc.recompute()
hole2 = body.newObject("PartDesign::Hole", "Hole001")
hole2.Profile = sketch22
hole2.ThreadType = "None"
hole2.Diameter = 1.6
hole2.DepthType = "Dimension"
hole2.Depth = 6
hole2.DrillPoint = "Angled"
hole2.DrillPointAngle = 118

# Sketch on XZ plane
sketch23 = body.newObject("Sketcher::SketchObject", "Sketch022")
sketch23.AttachmentSupport = (doc.getObject("XZ_Plane"), [""])
sketch23.MapMode = "FlatFace"
sketch23.AttachmentOffset = App.Placement(V(0, 0, -30), App.Rotation())
sketch23.addGeometry(Part.Circle(V(75.8, 2.9, 0), V(0, 0, 1), 1.2), False)
sketch23.addGeometry(Part.Circle(V(72.4, 12.3, 0), V(0, 0, 1), 1.2), False)
sketch23.addConstraint(Sketcher.Constraint("Equal", 0, 1))
sketch23.addConstraint(Sketcher.Constraint("Diameter", 0, Q("2.5 mm")))
sketch23.addConstraint(Sketcher.Constraint("DistanceX", 1, 3, 0, 3, Q("3.420201 mm")))
sketch23.addConstraint(Sketcher.Constraint("DistanceX", -1, 1, 0, 3, Q("75.771491 mm")))
sketch23.addConstraint(Sketcher.Constraint("DistanceY", -1, 1, 0, 3, Q("2.894422 mm")))
sketch23.addConstraint(Sketcher.Constraint("DistanceY", -1, 1, 1, 3, Q("12.291348 mm")))
doc.recompute()
hole3 = body.newObject("PartDesign::Hole", "Hole002")
hole3.Profile = sketch23
hole3.ThreadType = "None"
hole3.Diameter = 2.5
hole3.DepthType = "Dimension"
hole3.Depth = 8.5
hole3.DrillPoint = "Angled"
hole3.DrillPointAngle = 118

doc.recompute()
